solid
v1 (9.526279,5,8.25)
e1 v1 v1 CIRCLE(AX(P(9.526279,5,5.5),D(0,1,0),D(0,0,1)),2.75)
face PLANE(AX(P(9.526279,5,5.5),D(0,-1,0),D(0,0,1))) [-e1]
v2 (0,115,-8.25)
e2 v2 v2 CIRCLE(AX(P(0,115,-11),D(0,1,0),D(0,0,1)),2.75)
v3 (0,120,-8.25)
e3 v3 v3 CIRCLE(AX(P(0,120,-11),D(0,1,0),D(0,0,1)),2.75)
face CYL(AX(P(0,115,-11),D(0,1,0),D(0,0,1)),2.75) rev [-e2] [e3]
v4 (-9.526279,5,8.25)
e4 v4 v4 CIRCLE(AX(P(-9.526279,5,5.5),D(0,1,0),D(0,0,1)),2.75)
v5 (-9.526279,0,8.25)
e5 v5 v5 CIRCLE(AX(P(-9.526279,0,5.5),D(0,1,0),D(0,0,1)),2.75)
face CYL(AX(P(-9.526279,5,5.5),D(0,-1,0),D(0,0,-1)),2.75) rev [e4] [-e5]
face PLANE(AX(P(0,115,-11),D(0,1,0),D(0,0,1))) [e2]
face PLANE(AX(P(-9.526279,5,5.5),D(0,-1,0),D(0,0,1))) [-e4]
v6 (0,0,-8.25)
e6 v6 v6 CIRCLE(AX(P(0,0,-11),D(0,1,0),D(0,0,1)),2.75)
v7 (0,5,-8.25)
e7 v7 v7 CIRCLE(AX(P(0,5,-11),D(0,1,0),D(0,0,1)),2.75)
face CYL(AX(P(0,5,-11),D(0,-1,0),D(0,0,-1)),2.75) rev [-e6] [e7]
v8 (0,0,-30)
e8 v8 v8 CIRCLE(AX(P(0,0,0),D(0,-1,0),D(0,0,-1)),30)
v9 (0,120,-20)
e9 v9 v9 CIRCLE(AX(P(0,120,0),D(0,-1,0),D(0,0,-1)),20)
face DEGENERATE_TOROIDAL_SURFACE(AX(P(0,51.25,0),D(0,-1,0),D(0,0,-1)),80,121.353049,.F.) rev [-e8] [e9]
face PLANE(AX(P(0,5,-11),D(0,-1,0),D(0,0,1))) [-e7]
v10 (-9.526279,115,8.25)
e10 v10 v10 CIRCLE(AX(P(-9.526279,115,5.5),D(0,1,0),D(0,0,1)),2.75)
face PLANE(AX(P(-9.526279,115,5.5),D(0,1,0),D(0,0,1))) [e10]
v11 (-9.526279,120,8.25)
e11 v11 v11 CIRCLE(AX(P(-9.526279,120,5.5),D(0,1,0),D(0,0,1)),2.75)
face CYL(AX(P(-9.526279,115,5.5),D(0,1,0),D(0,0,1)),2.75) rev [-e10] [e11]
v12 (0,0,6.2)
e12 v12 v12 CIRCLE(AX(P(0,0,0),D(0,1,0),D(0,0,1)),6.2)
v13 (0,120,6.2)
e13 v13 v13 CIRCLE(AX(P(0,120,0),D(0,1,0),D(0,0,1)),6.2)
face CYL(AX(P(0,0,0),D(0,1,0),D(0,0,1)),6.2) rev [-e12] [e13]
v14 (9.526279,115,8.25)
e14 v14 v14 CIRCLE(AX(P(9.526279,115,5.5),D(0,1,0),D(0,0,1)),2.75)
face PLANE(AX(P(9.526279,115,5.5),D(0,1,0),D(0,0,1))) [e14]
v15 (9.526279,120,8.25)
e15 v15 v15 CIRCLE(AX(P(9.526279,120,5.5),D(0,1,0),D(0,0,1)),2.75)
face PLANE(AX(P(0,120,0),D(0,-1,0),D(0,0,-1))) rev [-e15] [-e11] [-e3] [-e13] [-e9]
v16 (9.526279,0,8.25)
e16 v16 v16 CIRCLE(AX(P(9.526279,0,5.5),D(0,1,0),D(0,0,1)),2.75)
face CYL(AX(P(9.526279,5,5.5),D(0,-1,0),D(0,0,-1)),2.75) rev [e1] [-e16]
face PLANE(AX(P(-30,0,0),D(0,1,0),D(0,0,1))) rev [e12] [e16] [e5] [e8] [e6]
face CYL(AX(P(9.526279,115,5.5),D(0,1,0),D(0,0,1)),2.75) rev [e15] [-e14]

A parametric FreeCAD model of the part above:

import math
import FreeCAD as App
import Part
import Sketcher
from FreeCAD import Vector

doc = App.newDocument("Part")
body = doc.addObject("PartDesign::Body", "Body")

sketch1 = body.newObject("Sketcher::SketchObject", "Sketch")
sketch1.AttachmentSupport = (doc.getObject("XY_Plane"), [""])
sketch1.MapMode = "FlatFace"
sketch1.addGeometry([
    Part.LineSegment(Vector(-30, 0, 0), Vector(0, 0, 0)),
    Part.LineSegment(Vector(0, 0, 0), Vector(0, 120, 0)),
    Part.LineSegment(Vector(0, 120, 0), Vector(-20, 120, 0)),
    Part.ArcOfCircle(Part.Circle(Vector(80, 51, 0), Vector(0, 0, 1), 121), math.radians(145), math.radians(205)),
], False)
sketch1.addConstraint([
    Sketcher.Constraint("Coincident", 0, 2, 1, 1),
    Sketcher.Constraint("Coincident", 1, 2, 2, 1),
    Sketcher.Constraint("Coincident", 2, 2, 3, 1),
    Sketcher.Constraint("Coincident", 3, 2, 0, 1),
    Sketcher.Constraint("Horizontal", 0),
    Sketcher.Constraint("Vertical", 1),
    Sketcher.Constraint("Horizontal", 2),
    Sketcher.Constraint("Coincident", 0, 2, -1, 1),
    Sketcher.Constraint("DistanceX", 0, 1, 0, 2, 30.0),
    Sketcher.Constraint("DistanceX", 2, 2, 2, 1, 20.0),
    Sketcher.Constraint("DistanceY", 1, 1, 1, 2, 120.0),
    Sketcher.Constraint("DistanceX", -1, 1, 3, 3, 80.0),
])
revolution = body.newObject("PartDesign::Revolution", "Revolution")
revolution.Profile = sketch1
revolution.ReferenceAxis = (sketch1, ["V_Axis"])
revolution.Angle = 360

sketch2 = body.newObject("Sketcher::SketchObject", "Sketch001")
sketch2.AttachmentSupport = (doc.getObject("XZ_Plane"), [""])
sketch2.MapMode = "FlatFace"
sketch2.AttachmentOffset = App.Placement(Vector(0, 0, -120), App.Rotation())
sketch2.addGeometry([
    Part.Circle(Vector(0, -11, 0), Vector(0, 0, 1), 2.8),
    Part.Circle(Vector(9.5, 5.5, 0), Vector(0, 0, 1), 2.8),
    Part.Circle(Vector(-9.5, 5.5, 0), Vector(0, 0, 1), 2.8),
], False)
sketch2.addConstraint([
    Sketcher.Constraint("Equal", 0, 1),
    Sketcher.Constraint("Equal", 1, 2),
    Sketcher.Constraint("Symmetric", 1, 3, 2, 3, -2),
    Sketcher.Constraint("PointOnObject", 0, 3, -2),
    Sketcher.Constraint("Diameter", 0, 5.5),
    Sketcher.Constraint("DistanceY", 0, 3, -1, 1, 11.0),
    Sketcher.Constraint("DistanceY", -1, 1, 1, 3, 5.5),
    Sketcher.Constraint("DistanceX", -1, 1, 1, 3, 9.526279),
])
pocket1 = body.newObject("PartDesign::Pocket", "Pocket")
pocket1.Profile = sketch2
pocket1.Length = 5
pocket1.Reversed = True
doc.recompute()

datumplane = body.newObject("PartDesign::Plane", "DatumPlane")
datumplane.AttachmentSupport = (doc.getObject("XZ_Plane"), [""])
datumplane.MapMode = "FlatFace"
datumplane.AttachmentOffset = App.Placement(Vector(0, 0, -60), App.Rotation())
mirrored = body.newObject("PartDesign::Mirrored", "Mirrored")
mirrored.Originals = [pocket1]
mirrored.MirrorPlane = (datumplane, [""])
body.Tip = mirrored

sketch3 = body.newObject("Sketcher::SketchObject", "Sketch002")
sketch3.AttachmentSupport = (doc.getObject("XZ_Plane"), [""])
sketch3.MapMode = "FlatFace"
sketch3.AttachmentOffset = App.Placement(Vector(0, 0, -120), App.Rotation())
sketch3.addGeometry(Part.Circle(Vector(0, 0, 0), Vector(0, 0, 1), 6), False)
sketch3.addConstraint([
    Sketcher.Constraint("Coincident", 0, 3, -1, 1),
    Sketcher.Constraint("Diameter", 0, 12.4),
])
pocket2 = body.newObject("PartDesign::Pocket", "Pocket001")
pocket2.Profile = sketch3
pocket2.Type = "ThroughAll"
pocket2.Reversed = True

doc.recompute()
